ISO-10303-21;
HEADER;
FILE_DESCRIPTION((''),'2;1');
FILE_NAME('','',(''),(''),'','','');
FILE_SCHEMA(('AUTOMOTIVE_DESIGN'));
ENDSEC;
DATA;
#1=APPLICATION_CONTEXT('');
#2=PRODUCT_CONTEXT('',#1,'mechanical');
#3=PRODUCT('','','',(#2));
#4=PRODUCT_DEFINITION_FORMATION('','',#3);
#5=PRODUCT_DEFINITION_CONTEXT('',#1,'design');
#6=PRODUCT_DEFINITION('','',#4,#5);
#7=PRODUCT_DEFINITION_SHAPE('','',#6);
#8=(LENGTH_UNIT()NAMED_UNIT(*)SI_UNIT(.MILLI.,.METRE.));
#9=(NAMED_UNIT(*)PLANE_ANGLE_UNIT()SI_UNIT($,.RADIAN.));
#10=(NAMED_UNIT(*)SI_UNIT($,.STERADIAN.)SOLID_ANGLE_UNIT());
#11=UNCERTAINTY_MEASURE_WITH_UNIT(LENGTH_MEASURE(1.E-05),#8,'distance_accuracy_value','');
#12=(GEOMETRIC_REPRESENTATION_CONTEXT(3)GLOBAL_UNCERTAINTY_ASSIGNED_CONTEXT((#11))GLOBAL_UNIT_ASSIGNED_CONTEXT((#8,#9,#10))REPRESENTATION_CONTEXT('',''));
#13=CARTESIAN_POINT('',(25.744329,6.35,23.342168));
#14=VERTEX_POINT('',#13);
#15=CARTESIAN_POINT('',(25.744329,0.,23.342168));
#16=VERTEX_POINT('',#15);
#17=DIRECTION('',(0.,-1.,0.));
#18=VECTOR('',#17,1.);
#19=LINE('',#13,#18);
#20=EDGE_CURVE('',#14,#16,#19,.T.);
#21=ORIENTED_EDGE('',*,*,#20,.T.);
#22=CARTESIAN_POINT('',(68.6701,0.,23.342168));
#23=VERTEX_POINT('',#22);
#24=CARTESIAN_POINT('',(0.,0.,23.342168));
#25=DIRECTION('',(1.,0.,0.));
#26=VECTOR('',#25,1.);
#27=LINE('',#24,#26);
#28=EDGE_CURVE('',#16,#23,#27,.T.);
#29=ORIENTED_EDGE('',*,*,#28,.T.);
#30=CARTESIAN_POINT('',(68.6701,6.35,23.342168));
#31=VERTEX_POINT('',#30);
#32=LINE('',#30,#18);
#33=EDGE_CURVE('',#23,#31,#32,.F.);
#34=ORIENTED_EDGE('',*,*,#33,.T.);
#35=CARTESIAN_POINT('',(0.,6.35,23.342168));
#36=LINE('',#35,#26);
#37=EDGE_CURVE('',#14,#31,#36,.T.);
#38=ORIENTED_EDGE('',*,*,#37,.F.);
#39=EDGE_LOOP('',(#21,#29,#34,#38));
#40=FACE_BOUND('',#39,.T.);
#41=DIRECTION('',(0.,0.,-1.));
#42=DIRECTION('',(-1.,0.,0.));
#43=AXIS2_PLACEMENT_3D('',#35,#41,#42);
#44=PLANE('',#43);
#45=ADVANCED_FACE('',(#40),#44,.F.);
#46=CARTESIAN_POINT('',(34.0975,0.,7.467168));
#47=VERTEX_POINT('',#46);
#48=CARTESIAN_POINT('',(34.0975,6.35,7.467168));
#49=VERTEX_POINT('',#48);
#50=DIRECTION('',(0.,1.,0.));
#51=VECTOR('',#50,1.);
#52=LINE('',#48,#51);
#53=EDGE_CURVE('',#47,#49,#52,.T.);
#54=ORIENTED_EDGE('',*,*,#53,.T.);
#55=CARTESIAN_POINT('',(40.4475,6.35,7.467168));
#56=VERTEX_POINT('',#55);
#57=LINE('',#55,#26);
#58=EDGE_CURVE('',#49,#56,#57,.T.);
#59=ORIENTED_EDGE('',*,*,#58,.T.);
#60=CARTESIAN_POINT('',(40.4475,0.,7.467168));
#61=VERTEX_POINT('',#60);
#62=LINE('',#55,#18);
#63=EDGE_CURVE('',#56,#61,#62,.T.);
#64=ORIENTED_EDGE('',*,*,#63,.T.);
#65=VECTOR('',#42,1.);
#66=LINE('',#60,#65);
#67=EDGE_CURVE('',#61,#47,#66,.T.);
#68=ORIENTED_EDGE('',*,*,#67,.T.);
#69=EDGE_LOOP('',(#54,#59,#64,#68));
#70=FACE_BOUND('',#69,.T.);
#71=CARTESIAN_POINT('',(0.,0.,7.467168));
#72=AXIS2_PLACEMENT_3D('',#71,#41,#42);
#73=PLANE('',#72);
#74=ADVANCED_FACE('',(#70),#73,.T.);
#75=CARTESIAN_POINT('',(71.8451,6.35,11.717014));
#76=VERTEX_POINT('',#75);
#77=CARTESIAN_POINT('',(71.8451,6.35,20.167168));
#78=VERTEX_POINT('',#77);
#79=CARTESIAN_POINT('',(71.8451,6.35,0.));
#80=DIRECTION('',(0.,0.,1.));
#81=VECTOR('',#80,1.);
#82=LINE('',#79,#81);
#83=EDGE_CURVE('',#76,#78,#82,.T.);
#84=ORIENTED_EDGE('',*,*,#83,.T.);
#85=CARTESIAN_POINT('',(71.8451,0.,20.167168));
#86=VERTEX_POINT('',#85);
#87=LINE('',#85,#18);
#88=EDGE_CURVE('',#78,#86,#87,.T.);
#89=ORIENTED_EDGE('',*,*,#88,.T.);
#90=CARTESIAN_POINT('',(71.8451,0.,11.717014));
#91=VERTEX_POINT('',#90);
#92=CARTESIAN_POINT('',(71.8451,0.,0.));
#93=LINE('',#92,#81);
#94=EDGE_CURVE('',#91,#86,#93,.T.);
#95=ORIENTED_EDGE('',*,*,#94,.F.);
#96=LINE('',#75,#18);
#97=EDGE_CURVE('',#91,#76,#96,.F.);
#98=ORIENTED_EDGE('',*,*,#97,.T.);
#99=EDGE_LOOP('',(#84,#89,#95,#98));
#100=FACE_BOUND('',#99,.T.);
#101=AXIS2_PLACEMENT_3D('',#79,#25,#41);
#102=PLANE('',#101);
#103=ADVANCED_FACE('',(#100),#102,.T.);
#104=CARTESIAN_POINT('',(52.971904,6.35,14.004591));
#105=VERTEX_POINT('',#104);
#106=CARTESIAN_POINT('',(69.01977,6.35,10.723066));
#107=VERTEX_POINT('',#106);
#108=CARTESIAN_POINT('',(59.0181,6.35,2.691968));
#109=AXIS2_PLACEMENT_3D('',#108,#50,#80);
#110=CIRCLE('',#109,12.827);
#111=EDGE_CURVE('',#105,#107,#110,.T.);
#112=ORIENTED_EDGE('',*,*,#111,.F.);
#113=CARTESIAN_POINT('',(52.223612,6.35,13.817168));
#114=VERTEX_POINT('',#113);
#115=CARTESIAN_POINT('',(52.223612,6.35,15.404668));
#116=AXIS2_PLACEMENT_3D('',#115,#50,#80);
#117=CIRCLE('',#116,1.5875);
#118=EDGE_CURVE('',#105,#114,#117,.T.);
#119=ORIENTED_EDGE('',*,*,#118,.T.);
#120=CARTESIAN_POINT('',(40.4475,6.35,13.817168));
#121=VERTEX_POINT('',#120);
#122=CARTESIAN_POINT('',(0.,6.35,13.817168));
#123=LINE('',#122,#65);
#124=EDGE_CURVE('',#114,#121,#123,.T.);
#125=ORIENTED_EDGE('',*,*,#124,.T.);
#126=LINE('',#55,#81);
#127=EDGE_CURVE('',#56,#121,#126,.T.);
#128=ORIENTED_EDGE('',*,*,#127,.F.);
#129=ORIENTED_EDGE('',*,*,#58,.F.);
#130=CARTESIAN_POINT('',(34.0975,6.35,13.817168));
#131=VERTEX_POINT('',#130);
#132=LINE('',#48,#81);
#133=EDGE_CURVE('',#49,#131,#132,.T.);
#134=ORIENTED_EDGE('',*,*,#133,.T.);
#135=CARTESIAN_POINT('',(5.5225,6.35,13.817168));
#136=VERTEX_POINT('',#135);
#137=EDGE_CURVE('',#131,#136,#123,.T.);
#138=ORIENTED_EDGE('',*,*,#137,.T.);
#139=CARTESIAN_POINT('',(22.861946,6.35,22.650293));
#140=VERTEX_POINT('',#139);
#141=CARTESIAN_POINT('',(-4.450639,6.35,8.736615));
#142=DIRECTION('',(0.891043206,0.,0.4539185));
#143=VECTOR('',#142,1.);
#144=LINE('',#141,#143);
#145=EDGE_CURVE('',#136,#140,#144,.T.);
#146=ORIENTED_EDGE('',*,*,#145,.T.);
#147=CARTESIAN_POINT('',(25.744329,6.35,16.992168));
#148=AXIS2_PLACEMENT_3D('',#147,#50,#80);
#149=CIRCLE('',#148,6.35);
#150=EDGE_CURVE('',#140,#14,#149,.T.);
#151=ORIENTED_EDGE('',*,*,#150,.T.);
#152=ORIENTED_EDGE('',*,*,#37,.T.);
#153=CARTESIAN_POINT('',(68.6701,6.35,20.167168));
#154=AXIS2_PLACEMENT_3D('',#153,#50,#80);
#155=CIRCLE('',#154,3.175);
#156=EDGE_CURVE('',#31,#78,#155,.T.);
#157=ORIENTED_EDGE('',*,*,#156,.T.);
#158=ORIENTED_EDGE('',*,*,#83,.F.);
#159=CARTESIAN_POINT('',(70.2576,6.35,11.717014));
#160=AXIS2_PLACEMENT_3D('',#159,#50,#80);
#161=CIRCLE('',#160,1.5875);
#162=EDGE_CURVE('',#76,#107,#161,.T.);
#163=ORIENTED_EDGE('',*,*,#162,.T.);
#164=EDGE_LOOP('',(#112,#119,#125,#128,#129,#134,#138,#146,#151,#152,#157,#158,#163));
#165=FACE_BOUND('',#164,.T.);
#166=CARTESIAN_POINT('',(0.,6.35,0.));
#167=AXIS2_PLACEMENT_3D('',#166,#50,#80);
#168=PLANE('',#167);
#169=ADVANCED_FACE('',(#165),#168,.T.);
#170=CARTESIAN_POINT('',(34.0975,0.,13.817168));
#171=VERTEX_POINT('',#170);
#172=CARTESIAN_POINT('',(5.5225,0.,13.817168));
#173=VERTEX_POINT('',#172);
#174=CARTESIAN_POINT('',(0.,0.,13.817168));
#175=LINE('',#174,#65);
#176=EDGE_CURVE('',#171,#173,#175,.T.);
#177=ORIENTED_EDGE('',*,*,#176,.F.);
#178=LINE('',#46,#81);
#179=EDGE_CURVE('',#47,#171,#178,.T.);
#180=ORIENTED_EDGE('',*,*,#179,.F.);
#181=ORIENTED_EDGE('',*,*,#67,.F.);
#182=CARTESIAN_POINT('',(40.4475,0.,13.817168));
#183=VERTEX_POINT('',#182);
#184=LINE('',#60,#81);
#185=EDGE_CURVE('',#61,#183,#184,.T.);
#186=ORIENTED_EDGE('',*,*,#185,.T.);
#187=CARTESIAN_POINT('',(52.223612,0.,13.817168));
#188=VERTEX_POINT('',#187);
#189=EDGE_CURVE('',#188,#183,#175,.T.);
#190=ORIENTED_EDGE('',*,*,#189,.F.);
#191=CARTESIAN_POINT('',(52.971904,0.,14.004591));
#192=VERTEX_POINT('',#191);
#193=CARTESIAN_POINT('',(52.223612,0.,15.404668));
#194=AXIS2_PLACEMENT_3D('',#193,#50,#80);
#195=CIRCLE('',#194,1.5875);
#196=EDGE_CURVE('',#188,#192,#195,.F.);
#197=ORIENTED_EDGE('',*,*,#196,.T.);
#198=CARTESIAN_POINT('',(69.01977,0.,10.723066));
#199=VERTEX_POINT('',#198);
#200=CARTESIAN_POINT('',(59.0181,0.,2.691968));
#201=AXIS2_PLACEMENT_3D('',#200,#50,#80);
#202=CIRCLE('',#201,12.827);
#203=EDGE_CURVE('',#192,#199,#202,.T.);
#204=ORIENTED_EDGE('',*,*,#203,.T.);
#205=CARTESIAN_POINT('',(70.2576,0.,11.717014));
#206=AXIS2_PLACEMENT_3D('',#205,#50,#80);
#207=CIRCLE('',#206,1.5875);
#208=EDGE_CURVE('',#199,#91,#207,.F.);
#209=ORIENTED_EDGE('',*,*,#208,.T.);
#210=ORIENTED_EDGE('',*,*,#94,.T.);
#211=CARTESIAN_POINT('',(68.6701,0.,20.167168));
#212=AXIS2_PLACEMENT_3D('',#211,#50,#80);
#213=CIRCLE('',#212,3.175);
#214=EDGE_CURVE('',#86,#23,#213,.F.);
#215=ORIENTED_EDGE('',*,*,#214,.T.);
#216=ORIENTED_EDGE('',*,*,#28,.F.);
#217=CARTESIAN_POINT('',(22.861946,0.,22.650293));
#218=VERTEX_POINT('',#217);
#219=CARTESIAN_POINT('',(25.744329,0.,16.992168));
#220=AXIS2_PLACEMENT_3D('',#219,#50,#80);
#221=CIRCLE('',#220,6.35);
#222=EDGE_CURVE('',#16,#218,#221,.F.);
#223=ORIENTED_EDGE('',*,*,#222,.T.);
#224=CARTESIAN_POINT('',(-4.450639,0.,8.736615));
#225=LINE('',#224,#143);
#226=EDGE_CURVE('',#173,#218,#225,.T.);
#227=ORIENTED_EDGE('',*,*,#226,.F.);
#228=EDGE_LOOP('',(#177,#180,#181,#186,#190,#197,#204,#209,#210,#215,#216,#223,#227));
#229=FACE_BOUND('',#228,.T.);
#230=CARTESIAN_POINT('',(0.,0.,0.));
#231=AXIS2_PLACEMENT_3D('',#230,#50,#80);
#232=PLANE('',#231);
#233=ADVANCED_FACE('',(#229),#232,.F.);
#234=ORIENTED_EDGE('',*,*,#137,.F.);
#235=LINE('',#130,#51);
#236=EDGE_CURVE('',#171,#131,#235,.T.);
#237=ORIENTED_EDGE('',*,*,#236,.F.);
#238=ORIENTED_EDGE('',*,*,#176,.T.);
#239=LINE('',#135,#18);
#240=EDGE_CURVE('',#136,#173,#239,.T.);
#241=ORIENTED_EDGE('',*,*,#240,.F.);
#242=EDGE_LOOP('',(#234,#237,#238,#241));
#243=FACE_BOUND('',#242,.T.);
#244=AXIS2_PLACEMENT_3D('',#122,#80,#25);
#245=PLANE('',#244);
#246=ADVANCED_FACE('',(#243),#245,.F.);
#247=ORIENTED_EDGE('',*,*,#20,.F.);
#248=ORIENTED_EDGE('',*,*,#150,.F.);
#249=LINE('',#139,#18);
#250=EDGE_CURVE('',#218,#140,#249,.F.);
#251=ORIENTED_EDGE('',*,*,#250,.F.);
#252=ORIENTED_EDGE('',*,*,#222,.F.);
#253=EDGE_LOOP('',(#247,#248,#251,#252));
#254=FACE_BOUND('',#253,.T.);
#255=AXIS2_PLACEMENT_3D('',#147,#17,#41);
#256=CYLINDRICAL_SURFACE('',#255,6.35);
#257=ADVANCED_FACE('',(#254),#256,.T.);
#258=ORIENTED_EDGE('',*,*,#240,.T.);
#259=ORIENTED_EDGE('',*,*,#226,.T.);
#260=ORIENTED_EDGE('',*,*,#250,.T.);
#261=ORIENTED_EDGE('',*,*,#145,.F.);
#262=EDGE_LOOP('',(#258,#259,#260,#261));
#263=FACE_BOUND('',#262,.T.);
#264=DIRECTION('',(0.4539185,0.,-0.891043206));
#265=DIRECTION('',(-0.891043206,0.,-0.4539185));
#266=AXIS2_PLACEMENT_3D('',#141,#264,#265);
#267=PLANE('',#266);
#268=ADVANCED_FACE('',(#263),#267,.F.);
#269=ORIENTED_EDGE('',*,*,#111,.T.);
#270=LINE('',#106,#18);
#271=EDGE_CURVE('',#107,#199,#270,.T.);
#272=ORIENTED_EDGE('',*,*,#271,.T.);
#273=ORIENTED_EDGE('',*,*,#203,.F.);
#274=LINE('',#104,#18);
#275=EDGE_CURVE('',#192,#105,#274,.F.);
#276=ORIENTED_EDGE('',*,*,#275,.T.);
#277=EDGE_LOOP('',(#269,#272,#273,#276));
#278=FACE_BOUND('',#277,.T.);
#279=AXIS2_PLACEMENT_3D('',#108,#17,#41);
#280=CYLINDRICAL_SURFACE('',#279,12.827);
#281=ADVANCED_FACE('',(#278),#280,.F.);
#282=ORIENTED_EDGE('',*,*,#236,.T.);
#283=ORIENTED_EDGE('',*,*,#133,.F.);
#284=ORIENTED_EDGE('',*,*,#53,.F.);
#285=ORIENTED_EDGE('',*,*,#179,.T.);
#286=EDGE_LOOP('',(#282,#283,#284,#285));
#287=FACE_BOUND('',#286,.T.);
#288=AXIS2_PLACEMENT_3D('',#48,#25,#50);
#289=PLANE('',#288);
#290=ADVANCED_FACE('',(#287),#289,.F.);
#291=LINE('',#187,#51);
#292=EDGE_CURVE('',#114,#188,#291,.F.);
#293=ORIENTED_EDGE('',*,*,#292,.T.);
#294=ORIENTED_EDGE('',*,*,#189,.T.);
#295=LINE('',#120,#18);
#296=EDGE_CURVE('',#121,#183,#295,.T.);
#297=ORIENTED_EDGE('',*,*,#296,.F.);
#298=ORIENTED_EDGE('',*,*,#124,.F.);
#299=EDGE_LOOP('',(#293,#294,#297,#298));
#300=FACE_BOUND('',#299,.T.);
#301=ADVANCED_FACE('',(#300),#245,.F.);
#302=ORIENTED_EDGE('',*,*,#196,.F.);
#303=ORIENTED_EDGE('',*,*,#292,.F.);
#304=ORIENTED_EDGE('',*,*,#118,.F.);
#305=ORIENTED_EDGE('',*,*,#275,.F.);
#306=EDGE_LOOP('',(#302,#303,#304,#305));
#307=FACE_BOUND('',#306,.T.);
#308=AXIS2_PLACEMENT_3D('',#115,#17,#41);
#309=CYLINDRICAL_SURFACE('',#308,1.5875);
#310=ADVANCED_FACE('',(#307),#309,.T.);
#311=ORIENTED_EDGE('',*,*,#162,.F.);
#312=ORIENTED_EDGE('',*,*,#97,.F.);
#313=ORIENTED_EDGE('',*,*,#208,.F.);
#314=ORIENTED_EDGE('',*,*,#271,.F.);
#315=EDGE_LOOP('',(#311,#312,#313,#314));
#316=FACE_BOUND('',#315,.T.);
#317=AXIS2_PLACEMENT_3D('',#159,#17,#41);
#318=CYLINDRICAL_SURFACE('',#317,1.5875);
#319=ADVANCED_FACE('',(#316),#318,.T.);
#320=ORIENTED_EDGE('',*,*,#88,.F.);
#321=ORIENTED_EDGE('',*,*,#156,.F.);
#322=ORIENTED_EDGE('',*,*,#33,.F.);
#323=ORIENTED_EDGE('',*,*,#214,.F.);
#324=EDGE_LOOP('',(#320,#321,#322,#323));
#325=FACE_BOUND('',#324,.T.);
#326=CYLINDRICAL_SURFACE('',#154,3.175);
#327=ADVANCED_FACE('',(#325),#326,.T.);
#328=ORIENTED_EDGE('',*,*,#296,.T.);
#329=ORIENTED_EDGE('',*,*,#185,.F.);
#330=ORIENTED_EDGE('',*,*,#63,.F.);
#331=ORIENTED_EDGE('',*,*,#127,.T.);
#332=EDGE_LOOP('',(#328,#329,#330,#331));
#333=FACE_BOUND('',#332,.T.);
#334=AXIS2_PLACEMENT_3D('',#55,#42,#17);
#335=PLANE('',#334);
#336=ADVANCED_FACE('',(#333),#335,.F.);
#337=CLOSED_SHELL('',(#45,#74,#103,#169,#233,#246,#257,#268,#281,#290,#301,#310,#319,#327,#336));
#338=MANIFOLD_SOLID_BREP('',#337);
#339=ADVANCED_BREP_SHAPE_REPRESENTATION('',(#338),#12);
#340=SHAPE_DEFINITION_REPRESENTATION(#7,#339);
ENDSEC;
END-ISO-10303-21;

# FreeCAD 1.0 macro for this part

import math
import FreeCAD as App
import Part
import Sketcher

V = App.Vector
Q = App.Units.Quantity


def edges_at(feature, points):
    """Names of the edges that pass closest to the given points."""
    edges = feature.Shape.Edges
    near = lambda p: min(range(len(edges)), key=lambda i: edges[i].distToShape(Part.Vertex(*p))[0])
    return sorted({f"Edge{near(p) + 1}" for p in points})


def add_polygon(sketch, points):
    """Adds a closed chain of lines whose ends are joined by coincident constraints."""
    first, n = sketch.GeometryCount, len(points)
    for a, b in zip(points, points[1:] + points[:1]):
        sketch.addGeometry(Part.LineSegment(App.Vector(*a, 0), App.Vector(*b, 0)), False)
    for i in range(n):
        sketch.addConstraint(Sketcher.Constraint("Coincident", first + i, 2, first + (i + 1) % n, 1))

doc = App.newDocument("Part")
body = doc.addObject("PartDesign::Body", "Body")

# Sketch on XZ plane
sketch1 = doc.addObject("Sketcher::SketchObject", "Sketch")
body.addObject(sketch1)
sketch1.AttachmentSupport = (doc.XZ_Plane, [""])
sketch1.MapMode = "FlatFace"
sketch1.addGeometry([
    Part.ArcOfCircle(Part.Circle(V(59, 3, 0), V(0, 0, 1), 13), math.radians(0), math.radians(120)),  # 0
    Part.LineSegment(V(53, 14, 0), V(6, 14, 0)),  # 1
    Part.LineSegment(V(6, 14, 0), V(24, 23, 0)),  # 2
    Part.LineSegment(V(24, 23, 0), V(72, 23, 0)),  # 3
    Part.LineSegment(V(72, 23, 0), V(72, 3, 0)),  # 4
], False)
sketch1.addConstraint([
    Sketcher.Constraint("Coincident", 0, 2, 1, 1),
    Sketcher.Constraint("Coincident", 1, 2, 2, 1),
    Sketcher.Constraint("Coincident", 2, 2, 3, 1),
    Sketcher.Constraint("Coincident", 3, 2, 4, 1),
    Sketcher.Constraint("Tangent", 4, 2, 0, 1),
    Sketcher.Constraint("Horizontal", 1),
    Sketcher.Constraint("Horizontal", 3),
    Sketcher.Constraint("Vertical", 4),
    Sketcher.Constraint("Radius", 0, Q("0.505 in")),
    Sketcher.Constraint("DistanceX", 3, 1, 3, 2, Q("1.875 in")),
    Sketcher.Constraint("DistanceY", 4, 2, 4, 1, Q("0.813 in")),
    Sketcher.Constraint("DistanceY", 0, 3, 0, 2, Q("0.438 in")),
    Sketcher.Constraint("DistanceX", 1, 2, 1, 1, Q("47.111099 mm")),
    Sketcher.Constraint("DistanceX", -1, 1, 0, 3, Q("59.0181 mm")),
    Sketcher.Constraint("DistanceY", -1, 1, 0, 3, Q("2.691968 mm")),
])
pad1 = doc.addObject("PartDesign::Pad", "Pad")
body.addObject(pad1)
pad1.Profile = sketch1
pad1.Length = Q("0.25 in")
pad1.Reversed = True
doc.recompute()

fillet = doc.addObject("PartDesign::Fillet", "Fillet")
body.addObject(fillet)
fillet.Base = (pad1, edges_at(pad1, [(71.845, 3.175, 2.692), (52.634, 3.175, 13.817)]))
fillet.Radius = Q("0.0625 in")
doc.recompute()

fillet2 = doc.addObject("PartDesign::Fillet", "Fillet001")
body.addObject(fillet2)
fillet2.Base = (fillet, edges_at(fillet, [(24.22, 3.175, 23.342)]))
fillet2.Radius = Q("0.25 in")
doc.recompute()

fillet3 = doc.addObject("PartDesign::Fillet", "Fillet002")
body.addObject(fillet3)
fillet3.Base = (fillet2, edges_at(fillet2, [(71.845, 3.175, 23.342)]))
fillet3.Radius = Q("0.125 in")

# Sketch on XY plane
sketch2 = doc.addObject("Sketcher::SketchObject", "Sketch001")
body.addObject(sketch2)
sketch2.AttachmentSupport = (doc.XY_Plane, [""])
sketch2.MapMode = "FlatFace"
sketch2.AttachmentOffset = App.Placement(V(0, 0, 13.817168), App.Rotation())
add_polygon(sketch2, [(40, 6), (40, 0), (34, 0), (34, 6)])  # lines 0-3
sketch2.addConstraint([
    Sketcher.Constraint("Vertical", 0),
    Sketcher.Constraint("Horizontal", 1),
    Sketcher.Constraint("Vertical", 2),
    Sketcher.Constraint("Horizontal", 3),
    Sketcher.Constraint("PointOnObject", 0, 2, -1),
    Sketcher.Constraint("Equal", 3, 0),
    Sketcher.Constraint("DistanceX", 1, 2, 1, 1, Q("0.25 in")),
    Sketcher.Constraint("DistanceX", -1, 1, 0, 2, Q("40.4475 mm")),
])
pad2 = doc.addObject("PartDesign::Pad", "Pad001")
body.addObject(pad2)
pad2.Profile = sketch2
pad2.Length = Q("0.25 in")
pad2.Reversed = True

doc.recompute()
